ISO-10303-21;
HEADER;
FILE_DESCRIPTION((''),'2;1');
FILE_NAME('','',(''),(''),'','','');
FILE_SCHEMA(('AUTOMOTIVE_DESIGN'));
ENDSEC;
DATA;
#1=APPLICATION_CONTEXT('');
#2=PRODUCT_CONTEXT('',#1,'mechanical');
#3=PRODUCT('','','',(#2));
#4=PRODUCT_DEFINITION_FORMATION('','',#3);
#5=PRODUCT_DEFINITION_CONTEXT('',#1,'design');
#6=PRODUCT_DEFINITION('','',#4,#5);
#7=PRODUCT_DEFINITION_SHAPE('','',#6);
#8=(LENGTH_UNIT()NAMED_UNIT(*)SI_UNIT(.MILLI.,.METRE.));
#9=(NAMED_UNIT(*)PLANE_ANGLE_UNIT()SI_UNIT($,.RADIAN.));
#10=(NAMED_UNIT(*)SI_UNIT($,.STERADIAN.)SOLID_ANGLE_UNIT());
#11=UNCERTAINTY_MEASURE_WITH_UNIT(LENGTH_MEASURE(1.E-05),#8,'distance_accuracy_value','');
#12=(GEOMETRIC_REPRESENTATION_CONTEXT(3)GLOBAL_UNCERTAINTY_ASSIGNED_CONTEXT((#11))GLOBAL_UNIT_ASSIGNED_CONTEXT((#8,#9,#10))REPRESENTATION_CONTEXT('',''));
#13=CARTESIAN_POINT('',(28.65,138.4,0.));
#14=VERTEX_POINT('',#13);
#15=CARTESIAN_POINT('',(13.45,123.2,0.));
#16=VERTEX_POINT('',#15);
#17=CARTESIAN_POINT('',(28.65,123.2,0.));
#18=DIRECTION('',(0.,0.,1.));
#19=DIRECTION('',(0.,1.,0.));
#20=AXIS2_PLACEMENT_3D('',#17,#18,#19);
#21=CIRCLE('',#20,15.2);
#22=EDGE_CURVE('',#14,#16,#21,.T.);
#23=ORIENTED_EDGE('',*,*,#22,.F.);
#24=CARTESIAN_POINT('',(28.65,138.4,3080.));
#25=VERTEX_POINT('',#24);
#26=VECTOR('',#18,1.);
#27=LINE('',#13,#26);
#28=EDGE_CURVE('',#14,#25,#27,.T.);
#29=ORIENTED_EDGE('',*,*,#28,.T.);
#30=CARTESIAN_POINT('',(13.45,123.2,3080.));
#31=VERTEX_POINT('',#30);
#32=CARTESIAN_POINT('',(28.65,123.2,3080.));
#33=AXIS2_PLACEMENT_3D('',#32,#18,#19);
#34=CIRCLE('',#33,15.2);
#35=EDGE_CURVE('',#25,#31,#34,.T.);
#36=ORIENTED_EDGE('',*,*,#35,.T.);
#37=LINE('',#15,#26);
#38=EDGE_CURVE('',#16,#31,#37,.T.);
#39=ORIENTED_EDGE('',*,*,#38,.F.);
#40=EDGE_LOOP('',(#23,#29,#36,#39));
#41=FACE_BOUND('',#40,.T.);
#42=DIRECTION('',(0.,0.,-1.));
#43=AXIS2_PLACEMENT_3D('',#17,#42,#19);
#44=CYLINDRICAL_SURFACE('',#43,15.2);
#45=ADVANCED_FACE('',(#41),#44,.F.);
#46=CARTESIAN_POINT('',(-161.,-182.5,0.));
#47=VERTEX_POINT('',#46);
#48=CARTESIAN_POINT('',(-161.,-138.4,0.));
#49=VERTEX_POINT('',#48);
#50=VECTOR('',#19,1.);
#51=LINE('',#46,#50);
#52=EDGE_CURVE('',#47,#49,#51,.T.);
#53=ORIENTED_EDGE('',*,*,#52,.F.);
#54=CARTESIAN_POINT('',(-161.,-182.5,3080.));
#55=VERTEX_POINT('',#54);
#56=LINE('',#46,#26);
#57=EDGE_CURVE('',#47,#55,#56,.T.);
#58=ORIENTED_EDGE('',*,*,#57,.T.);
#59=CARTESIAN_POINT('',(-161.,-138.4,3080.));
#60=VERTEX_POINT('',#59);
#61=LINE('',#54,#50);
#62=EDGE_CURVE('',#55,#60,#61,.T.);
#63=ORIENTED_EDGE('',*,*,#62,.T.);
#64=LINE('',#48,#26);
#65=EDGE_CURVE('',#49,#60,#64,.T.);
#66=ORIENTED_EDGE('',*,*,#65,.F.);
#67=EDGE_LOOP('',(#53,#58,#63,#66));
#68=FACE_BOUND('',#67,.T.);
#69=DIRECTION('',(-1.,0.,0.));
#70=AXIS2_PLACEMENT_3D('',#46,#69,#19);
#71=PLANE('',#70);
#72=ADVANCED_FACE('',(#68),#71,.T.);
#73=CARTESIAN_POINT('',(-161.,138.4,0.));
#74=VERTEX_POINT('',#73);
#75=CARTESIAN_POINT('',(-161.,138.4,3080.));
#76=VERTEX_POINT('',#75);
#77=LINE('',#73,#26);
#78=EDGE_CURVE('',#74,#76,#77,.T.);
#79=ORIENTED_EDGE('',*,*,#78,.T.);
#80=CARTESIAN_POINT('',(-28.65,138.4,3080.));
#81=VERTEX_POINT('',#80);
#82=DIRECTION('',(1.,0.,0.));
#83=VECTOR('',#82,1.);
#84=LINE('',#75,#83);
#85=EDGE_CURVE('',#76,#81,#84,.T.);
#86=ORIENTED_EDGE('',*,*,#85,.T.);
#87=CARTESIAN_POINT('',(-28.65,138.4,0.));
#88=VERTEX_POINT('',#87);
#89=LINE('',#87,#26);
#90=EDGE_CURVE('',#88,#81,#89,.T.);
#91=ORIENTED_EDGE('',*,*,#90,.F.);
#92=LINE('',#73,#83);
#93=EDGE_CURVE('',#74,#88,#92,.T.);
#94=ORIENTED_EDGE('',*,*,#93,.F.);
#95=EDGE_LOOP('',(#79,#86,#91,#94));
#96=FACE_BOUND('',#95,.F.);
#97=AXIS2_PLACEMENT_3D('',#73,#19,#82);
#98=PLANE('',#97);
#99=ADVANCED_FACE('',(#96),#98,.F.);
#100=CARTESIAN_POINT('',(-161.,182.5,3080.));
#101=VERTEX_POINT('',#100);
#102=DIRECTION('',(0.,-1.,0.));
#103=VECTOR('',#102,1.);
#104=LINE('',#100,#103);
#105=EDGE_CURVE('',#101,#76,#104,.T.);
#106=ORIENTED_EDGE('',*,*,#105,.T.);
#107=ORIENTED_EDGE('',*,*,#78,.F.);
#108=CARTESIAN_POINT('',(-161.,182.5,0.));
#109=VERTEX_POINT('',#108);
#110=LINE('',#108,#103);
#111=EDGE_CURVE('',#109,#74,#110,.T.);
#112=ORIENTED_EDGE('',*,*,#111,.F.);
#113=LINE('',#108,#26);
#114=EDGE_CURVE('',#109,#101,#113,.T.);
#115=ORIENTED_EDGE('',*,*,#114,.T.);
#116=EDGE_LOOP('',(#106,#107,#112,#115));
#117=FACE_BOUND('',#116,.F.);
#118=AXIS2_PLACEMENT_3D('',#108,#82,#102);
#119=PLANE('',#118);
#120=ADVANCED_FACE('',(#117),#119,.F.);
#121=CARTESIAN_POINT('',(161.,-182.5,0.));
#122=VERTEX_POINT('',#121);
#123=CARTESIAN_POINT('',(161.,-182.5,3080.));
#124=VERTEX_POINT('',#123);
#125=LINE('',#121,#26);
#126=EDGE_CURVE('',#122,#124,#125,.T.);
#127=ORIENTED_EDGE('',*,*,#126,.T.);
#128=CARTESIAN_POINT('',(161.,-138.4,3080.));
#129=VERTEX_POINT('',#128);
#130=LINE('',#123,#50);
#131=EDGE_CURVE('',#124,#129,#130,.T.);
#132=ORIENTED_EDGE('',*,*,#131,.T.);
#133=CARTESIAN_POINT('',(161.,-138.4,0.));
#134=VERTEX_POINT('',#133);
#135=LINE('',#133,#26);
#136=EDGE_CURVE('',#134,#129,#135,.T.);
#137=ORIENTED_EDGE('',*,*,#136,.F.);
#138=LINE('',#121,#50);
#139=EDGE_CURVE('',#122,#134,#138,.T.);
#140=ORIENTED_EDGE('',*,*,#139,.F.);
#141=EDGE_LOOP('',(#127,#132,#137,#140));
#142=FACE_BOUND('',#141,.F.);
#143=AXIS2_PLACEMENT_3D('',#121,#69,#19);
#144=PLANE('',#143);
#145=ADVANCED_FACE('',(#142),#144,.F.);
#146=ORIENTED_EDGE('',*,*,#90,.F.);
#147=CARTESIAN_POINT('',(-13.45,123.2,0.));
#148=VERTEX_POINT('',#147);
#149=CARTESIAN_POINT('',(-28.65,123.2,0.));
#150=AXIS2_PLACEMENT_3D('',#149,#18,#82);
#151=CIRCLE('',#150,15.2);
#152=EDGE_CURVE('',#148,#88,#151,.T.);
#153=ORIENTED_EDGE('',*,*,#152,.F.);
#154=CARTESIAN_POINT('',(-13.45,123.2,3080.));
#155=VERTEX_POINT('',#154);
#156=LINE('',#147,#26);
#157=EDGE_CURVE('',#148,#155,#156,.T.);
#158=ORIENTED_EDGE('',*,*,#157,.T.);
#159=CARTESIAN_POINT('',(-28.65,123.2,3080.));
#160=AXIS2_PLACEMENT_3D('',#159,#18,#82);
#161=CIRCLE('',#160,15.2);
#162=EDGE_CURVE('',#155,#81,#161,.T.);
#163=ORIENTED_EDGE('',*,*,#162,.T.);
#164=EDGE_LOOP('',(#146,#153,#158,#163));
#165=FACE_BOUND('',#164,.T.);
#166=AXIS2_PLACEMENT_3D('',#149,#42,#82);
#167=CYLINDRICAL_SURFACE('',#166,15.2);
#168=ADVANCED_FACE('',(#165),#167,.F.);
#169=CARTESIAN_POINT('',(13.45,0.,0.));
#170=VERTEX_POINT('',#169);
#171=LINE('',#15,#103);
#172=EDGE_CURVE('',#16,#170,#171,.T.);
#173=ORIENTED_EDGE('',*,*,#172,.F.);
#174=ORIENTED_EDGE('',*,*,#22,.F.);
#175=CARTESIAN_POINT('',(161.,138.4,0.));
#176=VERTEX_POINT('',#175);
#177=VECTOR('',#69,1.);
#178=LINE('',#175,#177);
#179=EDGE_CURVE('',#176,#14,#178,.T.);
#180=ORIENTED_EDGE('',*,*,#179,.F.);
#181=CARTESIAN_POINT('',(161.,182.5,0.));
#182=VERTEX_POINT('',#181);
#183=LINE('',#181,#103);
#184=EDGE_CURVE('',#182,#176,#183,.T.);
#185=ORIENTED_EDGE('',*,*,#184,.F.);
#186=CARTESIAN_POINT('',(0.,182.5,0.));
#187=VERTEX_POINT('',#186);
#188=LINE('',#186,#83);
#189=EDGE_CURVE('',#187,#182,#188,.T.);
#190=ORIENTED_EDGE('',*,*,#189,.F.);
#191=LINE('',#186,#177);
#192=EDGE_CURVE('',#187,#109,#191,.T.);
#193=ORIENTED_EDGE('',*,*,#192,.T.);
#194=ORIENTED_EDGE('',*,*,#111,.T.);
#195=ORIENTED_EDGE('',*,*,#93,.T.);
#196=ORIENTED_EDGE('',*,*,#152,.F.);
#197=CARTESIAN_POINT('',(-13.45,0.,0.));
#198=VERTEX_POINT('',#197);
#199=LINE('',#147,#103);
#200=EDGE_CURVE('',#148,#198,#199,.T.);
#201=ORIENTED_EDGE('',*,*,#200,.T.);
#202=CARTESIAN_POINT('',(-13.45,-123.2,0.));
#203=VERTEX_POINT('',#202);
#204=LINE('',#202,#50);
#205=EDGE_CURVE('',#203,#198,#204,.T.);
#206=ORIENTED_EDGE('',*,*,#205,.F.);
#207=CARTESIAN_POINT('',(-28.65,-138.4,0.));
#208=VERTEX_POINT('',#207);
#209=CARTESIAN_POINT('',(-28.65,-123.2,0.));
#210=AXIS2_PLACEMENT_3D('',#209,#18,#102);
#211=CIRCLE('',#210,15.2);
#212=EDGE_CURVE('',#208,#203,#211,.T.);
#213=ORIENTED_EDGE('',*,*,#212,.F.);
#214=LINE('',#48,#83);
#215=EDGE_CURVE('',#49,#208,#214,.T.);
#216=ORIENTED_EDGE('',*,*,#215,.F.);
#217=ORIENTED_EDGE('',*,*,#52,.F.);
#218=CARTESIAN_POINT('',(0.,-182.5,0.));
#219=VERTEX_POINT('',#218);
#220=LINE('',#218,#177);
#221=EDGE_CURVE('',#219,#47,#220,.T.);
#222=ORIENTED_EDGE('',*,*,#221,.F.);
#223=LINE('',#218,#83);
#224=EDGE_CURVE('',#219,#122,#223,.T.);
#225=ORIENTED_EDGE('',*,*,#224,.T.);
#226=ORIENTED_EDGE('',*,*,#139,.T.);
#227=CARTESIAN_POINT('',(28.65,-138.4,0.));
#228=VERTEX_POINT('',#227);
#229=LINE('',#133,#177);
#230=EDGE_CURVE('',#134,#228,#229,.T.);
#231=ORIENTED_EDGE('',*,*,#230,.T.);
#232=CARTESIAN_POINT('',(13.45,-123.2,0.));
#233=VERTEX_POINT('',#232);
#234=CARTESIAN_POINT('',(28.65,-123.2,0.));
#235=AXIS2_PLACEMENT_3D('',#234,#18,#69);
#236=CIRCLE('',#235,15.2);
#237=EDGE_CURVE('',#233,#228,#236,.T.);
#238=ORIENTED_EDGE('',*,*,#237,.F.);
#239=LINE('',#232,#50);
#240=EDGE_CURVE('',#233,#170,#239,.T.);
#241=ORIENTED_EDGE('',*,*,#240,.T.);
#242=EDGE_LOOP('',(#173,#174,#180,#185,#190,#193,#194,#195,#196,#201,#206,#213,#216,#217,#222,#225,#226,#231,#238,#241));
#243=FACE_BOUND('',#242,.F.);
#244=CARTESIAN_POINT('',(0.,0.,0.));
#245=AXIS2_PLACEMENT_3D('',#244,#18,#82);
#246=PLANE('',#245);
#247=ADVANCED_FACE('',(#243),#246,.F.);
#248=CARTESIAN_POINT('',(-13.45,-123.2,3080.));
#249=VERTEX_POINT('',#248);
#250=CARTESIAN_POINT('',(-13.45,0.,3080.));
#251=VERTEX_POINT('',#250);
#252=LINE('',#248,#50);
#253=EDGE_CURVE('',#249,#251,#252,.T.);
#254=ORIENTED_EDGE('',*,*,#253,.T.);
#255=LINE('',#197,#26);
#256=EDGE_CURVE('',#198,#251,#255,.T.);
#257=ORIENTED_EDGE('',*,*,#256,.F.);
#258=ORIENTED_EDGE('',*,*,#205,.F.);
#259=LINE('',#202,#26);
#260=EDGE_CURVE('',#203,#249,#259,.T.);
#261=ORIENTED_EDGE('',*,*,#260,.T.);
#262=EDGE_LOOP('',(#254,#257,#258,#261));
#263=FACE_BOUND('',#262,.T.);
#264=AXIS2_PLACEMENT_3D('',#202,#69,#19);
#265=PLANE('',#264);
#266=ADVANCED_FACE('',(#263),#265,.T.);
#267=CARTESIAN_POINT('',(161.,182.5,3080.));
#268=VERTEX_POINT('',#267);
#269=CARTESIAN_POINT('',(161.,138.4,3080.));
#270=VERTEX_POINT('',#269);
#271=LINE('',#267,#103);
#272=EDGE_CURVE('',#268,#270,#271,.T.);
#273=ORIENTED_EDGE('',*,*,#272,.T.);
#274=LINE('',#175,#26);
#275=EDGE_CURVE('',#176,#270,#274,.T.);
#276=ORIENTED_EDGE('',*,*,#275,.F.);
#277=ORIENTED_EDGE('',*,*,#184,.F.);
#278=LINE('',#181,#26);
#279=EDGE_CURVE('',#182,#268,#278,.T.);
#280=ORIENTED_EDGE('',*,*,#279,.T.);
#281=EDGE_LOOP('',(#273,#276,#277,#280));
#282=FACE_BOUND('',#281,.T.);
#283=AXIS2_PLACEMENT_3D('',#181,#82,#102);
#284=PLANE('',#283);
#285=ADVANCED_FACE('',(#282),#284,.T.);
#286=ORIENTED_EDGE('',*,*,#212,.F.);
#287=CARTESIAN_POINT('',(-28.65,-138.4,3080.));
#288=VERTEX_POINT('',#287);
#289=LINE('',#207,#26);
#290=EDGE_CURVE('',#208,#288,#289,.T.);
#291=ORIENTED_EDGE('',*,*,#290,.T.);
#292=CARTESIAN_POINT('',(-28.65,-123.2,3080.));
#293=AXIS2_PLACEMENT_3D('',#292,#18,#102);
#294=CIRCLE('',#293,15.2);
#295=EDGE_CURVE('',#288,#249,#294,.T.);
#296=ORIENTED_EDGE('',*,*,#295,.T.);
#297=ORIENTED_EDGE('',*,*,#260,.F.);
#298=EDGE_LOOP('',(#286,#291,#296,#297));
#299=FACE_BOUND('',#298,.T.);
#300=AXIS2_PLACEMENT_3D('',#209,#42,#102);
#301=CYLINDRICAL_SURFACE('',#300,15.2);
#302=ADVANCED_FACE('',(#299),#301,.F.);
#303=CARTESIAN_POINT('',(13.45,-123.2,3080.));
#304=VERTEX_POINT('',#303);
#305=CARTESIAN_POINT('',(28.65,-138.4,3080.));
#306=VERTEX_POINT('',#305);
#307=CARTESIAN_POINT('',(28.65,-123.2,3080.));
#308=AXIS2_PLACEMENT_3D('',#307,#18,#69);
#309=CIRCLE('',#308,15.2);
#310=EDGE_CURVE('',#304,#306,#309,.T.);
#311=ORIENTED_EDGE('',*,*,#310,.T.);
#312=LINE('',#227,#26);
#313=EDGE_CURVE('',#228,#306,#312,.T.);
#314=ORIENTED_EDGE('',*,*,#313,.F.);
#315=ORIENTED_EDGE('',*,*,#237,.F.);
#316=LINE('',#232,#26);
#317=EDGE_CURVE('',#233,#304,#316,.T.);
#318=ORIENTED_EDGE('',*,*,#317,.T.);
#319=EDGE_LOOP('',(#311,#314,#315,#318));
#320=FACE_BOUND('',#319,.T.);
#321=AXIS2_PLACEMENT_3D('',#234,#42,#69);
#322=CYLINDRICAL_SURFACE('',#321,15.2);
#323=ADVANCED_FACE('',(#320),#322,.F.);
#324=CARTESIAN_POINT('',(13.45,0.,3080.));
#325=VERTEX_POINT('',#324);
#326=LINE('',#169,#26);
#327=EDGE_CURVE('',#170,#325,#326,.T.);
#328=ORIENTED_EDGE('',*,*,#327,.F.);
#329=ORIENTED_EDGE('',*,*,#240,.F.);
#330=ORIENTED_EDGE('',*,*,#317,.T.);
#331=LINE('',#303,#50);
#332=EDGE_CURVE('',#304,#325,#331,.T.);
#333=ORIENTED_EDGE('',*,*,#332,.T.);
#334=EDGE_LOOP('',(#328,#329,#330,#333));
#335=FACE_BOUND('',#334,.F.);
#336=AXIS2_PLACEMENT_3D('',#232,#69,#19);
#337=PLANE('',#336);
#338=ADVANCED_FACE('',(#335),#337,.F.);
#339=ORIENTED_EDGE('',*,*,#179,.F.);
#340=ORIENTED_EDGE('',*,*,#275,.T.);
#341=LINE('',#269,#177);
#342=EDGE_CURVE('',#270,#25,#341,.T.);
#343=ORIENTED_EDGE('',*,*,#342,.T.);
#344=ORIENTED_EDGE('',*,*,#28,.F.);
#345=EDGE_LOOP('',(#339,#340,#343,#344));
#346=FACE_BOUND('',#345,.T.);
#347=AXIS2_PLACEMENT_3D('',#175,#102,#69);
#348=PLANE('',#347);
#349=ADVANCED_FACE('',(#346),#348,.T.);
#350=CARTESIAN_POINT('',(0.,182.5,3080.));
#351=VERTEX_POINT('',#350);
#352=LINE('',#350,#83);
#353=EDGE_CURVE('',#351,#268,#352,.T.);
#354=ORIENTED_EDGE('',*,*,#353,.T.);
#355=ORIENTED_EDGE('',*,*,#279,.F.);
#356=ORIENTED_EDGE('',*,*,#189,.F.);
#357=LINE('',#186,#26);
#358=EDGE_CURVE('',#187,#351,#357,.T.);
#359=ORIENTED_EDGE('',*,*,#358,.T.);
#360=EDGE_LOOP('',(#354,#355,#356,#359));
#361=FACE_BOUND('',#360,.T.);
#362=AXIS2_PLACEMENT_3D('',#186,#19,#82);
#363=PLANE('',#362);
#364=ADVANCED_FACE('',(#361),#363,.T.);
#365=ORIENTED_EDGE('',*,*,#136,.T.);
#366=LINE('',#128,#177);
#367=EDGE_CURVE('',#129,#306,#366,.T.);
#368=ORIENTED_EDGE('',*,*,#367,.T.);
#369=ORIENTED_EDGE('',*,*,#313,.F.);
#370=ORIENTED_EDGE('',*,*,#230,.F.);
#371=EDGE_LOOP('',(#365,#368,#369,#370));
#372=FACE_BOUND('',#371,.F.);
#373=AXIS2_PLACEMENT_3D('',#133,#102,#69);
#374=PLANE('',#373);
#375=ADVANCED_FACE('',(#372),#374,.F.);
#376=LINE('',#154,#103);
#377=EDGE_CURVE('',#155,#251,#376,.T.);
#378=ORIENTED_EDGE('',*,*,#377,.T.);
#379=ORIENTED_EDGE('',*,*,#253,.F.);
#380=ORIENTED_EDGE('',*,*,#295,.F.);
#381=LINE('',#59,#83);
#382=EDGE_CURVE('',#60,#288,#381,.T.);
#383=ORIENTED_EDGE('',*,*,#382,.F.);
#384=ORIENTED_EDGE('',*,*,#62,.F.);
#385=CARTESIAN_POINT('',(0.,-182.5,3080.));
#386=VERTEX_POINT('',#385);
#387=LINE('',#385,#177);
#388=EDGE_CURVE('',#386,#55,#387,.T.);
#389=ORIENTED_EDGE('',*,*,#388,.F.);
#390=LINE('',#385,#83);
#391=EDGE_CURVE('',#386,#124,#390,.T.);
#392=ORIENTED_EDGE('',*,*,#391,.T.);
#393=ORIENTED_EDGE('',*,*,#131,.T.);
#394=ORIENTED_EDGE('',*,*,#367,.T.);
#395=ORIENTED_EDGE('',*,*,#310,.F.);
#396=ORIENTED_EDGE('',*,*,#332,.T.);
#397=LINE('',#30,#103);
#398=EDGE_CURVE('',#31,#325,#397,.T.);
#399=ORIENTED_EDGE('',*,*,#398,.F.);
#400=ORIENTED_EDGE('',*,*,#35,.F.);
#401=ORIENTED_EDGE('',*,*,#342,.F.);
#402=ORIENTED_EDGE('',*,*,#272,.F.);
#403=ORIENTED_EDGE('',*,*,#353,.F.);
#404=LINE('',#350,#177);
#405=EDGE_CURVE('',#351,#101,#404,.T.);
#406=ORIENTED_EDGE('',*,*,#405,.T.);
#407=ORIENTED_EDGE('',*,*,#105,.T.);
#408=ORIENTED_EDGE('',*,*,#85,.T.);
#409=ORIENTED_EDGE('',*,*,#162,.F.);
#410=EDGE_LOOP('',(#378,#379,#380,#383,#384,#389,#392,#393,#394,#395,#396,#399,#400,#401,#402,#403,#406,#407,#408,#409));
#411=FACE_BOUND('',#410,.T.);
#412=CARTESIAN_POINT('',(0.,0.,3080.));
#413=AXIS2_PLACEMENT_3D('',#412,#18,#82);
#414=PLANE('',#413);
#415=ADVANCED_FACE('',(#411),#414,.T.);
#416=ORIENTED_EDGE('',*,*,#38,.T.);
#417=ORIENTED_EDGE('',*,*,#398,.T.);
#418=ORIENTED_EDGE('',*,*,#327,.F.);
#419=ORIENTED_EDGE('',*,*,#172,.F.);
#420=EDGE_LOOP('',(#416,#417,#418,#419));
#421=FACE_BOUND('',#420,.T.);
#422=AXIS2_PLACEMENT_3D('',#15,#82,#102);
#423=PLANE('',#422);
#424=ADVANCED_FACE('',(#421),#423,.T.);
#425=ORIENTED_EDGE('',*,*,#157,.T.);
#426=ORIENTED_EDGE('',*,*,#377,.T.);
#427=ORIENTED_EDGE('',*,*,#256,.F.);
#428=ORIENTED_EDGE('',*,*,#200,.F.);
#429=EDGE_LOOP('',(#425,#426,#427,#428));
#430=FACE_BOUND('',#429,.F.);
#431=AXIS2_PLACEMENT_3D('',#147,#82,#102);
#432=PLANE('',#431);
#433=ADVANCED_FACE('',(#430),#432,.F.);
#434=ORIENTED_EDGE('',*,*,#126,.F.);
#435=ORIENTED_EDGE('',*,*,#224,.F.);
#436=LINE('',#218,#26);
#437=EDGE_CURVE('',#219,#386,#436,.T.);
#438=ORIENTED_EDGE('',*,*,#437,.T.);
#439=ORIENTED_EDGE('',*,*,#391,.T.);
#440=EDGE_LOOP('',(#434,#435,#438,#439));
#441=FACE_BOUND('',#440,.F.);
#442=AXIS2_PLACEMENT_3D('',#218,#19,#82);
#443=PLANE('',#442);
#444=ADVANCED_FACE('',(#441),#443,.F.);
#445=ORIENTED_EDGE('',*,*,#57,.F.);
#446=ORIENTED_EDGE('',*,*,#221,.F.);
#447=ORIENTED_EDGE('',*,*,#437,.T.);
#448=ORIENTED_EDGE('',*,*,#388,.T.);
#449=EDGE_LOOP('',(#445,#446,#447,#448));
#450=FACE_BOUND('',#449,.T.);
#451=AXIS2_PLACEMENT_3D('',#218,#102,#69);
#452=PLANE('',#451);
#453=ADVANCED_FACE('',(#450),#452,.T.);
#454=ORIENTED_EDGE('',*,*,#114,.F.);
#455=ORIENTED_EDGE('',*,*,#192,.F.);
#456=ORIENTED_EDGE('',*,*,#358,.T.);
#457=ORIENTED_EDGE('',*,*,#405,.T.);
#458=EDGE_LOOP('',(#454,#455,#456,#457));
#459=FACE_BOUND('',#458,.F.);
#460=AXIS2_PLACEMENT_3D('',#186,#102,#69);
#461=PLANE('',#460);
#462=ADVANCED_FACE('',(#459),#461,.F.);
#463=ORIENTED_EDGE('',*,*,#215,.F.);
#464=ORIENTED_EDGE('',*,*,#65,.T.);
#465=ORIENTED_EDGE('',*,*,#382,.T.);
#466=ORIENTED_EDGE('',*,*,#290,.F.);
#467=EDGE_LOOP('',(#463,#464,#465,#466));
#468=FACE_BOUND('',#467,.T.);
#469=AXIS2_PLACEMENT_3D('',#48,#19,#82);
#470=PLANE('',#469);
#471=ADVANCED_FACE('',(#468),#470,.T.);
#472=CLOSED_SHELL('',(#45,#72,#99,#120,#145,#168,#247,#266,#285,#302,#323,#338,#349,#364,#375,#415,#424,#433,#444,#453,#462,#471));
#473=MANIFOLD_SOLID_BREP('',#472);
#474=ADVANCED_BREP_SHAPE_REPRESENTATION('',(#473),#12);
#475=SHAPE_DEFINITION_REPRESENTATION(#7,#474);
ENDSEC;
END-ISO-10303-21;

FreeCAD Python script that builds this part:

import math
import FreeCAD as App
import Part
import Sketcher

V = App.Vector

doc = App.newDocument("Part")
body = doc.addObject("PartDesign::Body", "Body")

# Sketch on XY plane
sketch1 = body.newObject("Sketcher::SketchObject", "Sketch")
sketch1.AttachmentSupport = (doc.getObject("XY_Plane"), [""])
sketch1.MapMode = "FlatFace"
sketch1.addGeometry(Part.LineSegment(V(-161, -138, 0), V(-161, -182, 0)), False)
sketch1.addGeometry(Part.LineSegment(V(-161, -182, 0), V(161, -182, 0)), False)
sketch1.addGeometry(Part.LineSegment(V(161, -182, 0), V(161, -138, 0)), False)
sketch1.addGeometry(Part.LineSegment(V(161, -138, 0), V(29, -138, 0)), False)
sketch1.addGeometry(Part.ArcOfCircle(Part.Circle(V(29, -123, 0), V(0, 0, 1), 15), math.radians(180), math.radians(270)), False)
sketch1.addGeometry(Part.LineSegment(V(13, -123, 0), V(13, 123, 0)), False)
sketch1.addGeometry(Part.ArcOfCircle(Part.Circle(V(29, 123, 0), V(0, 0, 1), 15), math.radians(90), math.radians(180)), False)
sketch1.addGeometry(Part.LineSegment(V(29, 138, 0), V(161, 138, 0)), False)
sketch1.addGeometry(Part.LineSegment(V(161, 138, 0), V(161, 182, 0)), False)
sketch1.addGeometry(Part.LineSegment(V(161, 182, 0), V(-161, 182, 0)), False)
sketch1.addGeometry(Part.LineSegment(V(-161, 182, 0), V(-161, 138, 0)), False)
sketch1.addGeometry(Part.LineSegment(V(-161, 138, 0), V(-29, 138, 0)), False)
sketch1.addGeometry(Part.ArcOfCircle(Part.Circle(V(-29, 123, 0), V(0, 0, 1), 15), math.radians(0), math.radians(90)), False)
sketch1.addGeometry(Part.LineSegment(V(-13, 123, 0), V(-13, -123, 0)), False)
sketch1.addGeometry(Part.ArcOfCircle(Part.Circle(V(-29, -123, 0), V(0, 0, 1), 15), math.radians(-90), math.radians(0)), False)
sketch1.addGeometry(Part.LineSegment(V(-29, -138, 0), V(-161, -138, 0)), False)
sketch1.addConstraint(Sketcher.Constraint("Coincident", 0, 2, 1, 1))
sketch1.addConstraint(Sketcher.Constraint("Coincident", 1, 2, 2, 1))
sketch1.addConstraint(Sketcher.Constraint("Coincident", 2, 2, 3, 1))
sketch1.addConstraint(Sketcher.Constraint("Tangent", 3, 2, 4, 2))
sketch1.addConstraint(Sketcher.Constraint("Tangent", 4, 1, 5, 1))
sketch1.addConstraint(Sketcher.Constraint("Tangent", 5, 2, 6, 2))
sketch1.addConstraint(Sketcher.Constraint("Tangent", 6, 1, 7, 1))
sketch1.addConstraint(Sketcher.Constraint("Coincident", 7, 2, 8, 1))
sketch1.addConstraint(Sketcher.Constraint("Coincident", 8, 2, 9, 1))
sketch1.addConstraint(Sketcher.Constraint("Coincident", 9, 2, 10, 1))
sketch1.addConstraint(Sketcher.Constraint("Coincident", 10, 2, 11, 1))
sketch1.addConstraint(Sketcher.Constraint("Tangent", 11, 2, 12, 2))
sketch1.addConstraint(Sketcher.Constraint("Tangent", 12, 1, 13, 1))
sketch1.addConstraint(Sketcher.Constraint("Tangent", 13, 2, 14, 2))
sketch1.addConstraint(Sketcher.Constraint("Tangent", 14, 1, 15, 1))
sketch1.addConstraint(Sketcher.Constraint("Coincident", 15, 2, 0, 1))
sketch1.addConstraint(Sketcher.Constraint("Vertical", 0))
sketch1.addConstraint(Sketcher.Constraint("Horizontal", 1))
sketch1.addConstraint(Sketcher.Constraint("Vertical", 2))
sketch1.addConstraint(Sketcher.Constraint("Horizontal", 3))
sketch1.addConstraint(Sketcher.Constraint("Vertical", 5))
sketch1.addConstraint(Sketcher.Constraint("Horizontal", 7))
sketch1.addConstraint(Sketcher.Constraint("Vertical", 8))
sketch1.addConstraint(Sketcher.Constraint("Horizontal", 9))
sketch1.addConstraint(Sketcher.Constraint("Vertical", 10))
sketch1.addConstraint(Sketcher.Constraint("Horizontal", 11))
sketch1.addConstraint(Sketcher.Constraint("Vertical", 13))
sketch1.addConstraint(Sketcher.Constraint("Horizontal", 15))
sketch1.addConstraint(Sketcher.Constraint("Equal", 4, 6))
sketch1.addConstraint(Sketcher.Constraint("Equal", 6, 12))
sketch1.addConstraint(Sketcher.Constraint("Equal", 12, 14))
sketch1.addConstraint(Sketcher.Constraint("Symmetric", 4, 3, 12, 3, -1, 1))
sketch1.addConstraint(Sketcher.Constraint("Symmetric", 0, 2, 8, 2, -1, 1))
sketch1.addConstraint(Sketcher.Constraint("Symmetric", 7, 2, 10, 2, -2))
sketch1.addConstraint(Sketcher.Constraint("Symmetric", 2, 2, 15, 2, -2))
sketch1.addConstraint(Sketcher.Constraint("Radius", 4, 15.2))
sketch1.addConstraint(Sketcher.Constraint("DistanceY", 0, 2, 0, 1, 44.1))
sketch1.addConstraint(Sketcher.Constraint("DistanceX", 0, 2, -1, 1, 161.0))
sketch1.addConstraint(Sketcher.Constraint("DistanceY", 0, 2, -1, 1, 182.5))
sketch1.addConstraint(Sketcher.Constraint("DistanceX", -1, 1, 4, 1, 13.45))
pad1 = body.newObject("PartDesign::Pad", "Pad")
pad1.Profile = sketch1
pad1.Length = 3080

doc.recompute()
